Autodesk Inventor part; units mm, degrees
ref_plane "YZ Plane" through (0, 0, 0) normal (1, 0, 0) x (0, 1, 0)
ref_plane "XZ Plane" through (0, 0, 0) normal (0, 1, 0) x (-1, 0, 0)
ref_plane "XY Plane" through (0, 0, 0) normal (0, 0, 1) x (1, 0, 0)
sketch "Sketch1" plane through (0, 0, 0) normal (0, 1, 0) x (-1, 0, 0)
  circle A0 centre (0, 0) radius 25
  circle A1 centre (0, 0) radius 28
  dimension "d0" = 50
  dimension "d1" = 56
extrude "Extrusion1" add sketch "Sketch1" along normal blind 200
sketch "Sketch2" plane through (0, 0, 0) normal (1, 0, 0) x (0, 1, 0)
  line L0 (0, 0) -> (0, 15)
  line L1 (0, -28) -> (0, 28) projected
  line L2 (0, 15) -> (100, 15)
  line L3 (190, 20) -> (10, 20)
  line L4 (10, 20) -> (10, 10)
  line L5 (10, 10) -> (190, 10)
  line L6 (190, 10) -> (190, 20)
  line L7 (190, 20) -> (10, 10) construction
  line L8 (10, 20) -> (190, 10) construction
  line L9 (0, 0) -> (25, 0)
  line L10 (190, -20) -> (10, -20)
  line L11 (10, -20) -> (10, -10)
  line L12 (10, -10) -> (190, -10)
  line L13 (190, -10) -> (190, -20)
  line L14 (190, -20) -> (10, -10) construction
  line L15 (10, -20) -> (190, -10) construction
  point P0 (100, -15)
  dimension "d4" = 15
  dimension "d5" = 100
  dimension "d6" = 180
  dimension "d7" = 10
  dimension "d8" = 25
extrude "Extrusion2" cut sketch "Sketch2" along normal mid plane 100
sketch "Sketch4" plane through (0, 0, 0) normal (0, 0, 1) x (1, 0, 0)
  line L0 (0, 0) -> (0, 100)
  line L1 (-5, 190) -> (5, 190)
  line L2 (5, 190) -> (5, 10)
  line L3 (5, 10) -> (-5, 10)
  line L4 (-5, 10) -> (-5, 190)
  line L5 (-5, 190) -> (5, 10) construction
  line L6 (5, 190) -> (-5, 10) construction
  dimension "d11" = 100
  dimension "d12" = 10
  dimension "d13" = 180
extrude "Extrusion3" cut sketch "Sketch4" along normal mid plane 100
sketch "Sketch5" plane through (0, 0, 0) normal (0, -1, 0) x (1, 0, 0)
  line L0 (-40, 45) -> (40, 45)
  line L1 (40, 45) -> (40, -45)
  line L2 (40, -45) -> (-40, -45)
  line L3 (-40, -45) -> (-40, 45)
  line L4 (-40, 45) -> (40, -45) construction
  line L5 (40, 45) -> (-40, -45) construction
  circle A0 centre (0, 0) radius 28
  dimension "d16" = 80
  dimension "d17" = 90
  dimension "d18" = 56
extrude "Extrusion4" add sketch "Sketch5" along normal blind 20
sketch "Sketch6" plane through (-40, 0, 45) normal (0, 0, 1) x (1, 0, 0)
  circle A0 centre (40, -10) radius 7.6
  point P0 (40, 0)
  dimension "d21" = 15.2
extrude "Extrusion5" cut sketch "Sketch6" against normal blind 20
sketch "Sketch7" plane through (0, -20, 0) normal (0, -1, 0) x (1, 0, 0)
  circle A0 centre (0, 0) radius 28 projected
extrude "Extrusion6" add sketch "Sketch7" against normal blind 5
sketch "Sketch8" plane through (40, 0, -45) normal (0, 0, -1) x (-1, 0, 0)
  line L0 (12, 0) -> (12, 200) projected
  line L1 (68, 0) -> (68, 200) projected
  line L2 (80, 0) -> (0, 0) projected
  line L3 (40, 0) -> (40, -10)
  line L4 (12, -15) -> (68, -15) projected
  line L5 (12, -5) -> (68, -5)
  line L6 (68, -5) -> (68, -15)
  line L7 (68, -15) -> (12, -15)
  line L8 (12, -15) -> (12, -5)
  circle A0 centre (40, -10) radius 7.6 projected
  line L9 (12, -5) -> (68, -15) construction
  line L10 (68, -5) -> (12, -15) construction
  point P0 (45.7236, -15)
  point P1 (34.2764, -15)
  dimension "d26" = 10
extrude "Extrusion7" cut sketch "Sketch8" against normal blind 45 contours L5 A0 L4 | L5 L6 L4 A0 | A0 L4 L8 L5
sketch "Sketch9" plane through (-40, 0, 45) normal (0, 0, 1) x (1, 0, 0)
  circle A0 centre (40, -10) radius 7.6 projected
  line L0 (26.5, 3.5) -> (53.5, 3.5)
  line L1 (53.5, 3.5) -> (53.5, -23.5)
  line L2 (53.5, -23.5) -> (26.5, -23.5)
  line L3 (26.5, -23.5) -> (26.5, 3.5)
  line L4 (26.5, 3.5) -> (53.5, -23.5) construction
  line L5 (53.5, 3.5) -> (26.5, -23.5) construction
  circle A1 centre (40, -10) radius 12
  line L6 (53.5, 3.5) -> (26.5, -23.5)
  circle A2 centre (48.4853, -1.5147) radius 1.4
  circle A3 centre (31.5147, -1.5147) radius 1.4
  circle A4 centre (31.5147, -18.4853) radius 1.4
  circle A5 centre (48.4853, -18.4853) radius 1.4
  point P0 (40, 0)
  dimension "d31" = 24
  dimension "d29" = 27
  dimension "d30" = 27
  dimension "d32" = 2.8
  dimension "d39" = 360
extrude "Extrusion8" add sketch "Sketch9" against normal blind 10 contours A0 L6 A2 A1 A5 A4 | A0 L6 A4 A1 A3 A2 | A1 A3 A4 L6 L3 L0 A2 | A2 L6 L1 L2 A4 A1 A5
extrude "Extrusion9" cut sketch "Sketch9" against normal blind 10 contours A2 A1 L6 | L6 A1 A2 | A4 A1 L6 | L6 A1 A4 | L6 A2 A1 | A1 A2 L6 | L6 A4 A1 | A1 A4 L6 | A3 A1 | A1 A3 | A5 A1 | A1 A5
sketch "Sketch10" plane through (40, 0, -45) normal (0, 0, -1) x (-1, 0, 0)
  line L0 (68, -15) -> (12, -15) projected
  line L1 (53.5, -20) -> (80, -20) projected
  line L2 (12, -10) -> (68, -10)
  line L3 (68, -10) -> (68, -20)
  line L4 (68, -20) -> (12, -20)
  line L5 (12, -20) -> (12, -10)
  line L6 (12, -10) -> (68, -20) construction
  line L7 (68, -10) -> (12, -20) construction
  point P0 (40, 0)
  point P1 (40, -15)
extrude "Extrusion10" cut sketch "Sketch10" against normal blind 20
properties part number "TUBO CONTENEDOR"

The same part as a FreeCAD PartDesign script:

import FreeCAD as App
import Part
import Sketcher
from FreeCAD import Vector


def add_polygon(sketch, points):
    """Adds a closed chain of lines whose ends are joined by coincident constraints."""
    first, n = sketch.GeometryCount, len(points)
    for a, b in zip(points, points[1:] + points[:1]):
        sketch.addGeometry(Part.LineSegment(App.Vector(*a, 0), App.Vector(*b, 0)), False)
    for i in range(n):
        sketch.addConstraint(Sketcher.Constraint("Coincident", first + i, 2, first + (i + 1) % n, 1))

doc = App.newDocument("Part")
params = doc.addObject("Spreadsheet::Sheet", "Params")
for row, (alias, value) in enumerate([
    ("sketch1_diameter", "56 mm"),
    ("sketch1_diameter2", "50 mm"),
    ("pad1_length", "200 mm"),
    ("sketch2_width", "180 mm"),
    ("sketch2_height", "10 mm"),
    ("pocket1_length", "100 mm"),
    ("sketch3_width", "10 mm"),
    ("sketch3_height", "180 mm"),
    ("pocket2_length", "100 mm"),
    ("sketch4_diameter", "56 mm"),
    ("sketch4_width", "80 mm"),
    ("sketch4_height", "90 mm"),
    ("pad2_length", "20 mm"),
    ("sketch5_diameter", "15.2 mm"),
    ("pocket3_length", "20 mm"),
    ("sketch6_diameter", "56 mm"),
    ("pad3_length", "5 mm"),
    ("sketch7_height", "10 mm"),
    ("sketch7_width", "56 mm"),
    ("pocket4_length", "45 mm"),
    ("sketch8_diameter", "2.8 mm"),
    ("sketch8_width", "27 mm"),
    ("sketch8_diameter2", "15.2 mm"),
    ("pad4_length", "10 mm"),
    ("sketch9_diameter", "2.8 mm"),
    ("pocket5_length", "10 mm"),
    ("sketch10_width", "56 mm"),
    ("sketch10_height", "10 mm"),
    ("pocket6_length", "20 mm"),
], start=1):
    params.set(f"A{row}", alias)
    params.set(f"B{row}", "=" + value)
    params.setAlias(f"B{row}", alias)

body = doc.addObject("PartDesign::Body", "Body")
body.AllowCompound = True

sketch1 = body.newObject("Sketcher::SketchObject", "Sketch")
sketch1.AttachmentSupport = (doc.getObject("XZ_Plane"), [""])
sketch1.MapMode = "FlatFace"
sketch1.addGeometry([
    Part.Circle(Vector(0, 0, 0), Vector(0, 0, 1), 28),
    Part.Circle(Vector(0, 0, 0), Vector(0, 0, 1), 25),
], False)
sketch1.addConstraint([
    Sketcher.Constraint("Coincident", 0, 3, -1, 1),
    Sketcher.Constraint("Coincident", 1, 3, -1, 1),
    Sketcher.Constraint("Diameter", 0, 56.0),
    Sketcher.Constraint("Diameter", 1, 50.0),
])
sketch1.setExpression("Constraints[2]", "Params.sketch1_diameter")
sketch1.setExpression("Constraints[3]", "Params.sketch1_diameter2")
pad1 = body.newObject("PartDesign::Pad", "Pad")
pad1.Profile = sketch1
pad1.setExpression("Length", "Params.pad1_length")
pad1.Reversed = True

sketch2 = body.newObject("Sketcher::SketchObject", "Sketch001")
sketch2.AttachmentSupport = (doc.getObject("YZ_Plane"), [""])
sketch2.MapMode = "FlatFace"
add_polygon(sketch2, [(190, 10), (190, 20), (10, 20), (10, 10)])
add_polygon(sketch2, [(10, -20), (190, -20), (190, -10), (10, -10)])
sketch2.addConstraint([
    Sketcher.Constraint("Vertical", 0),
    Sketcher.Constraint("Horizontal", 1),
    Sketcher.Constraint("Vertical", 2),
    Sketcher.Constraint("Horizontal", 3),
    Sketcher.Constraint("Horizontal", 4),
    Sketcher.Constraint("Vertical", 5),
    Sketcher.Constraint("Horizontal", 6),
    Sketcher.Constraint("Vertical", 7),
    Sketcher.Constraint("Symmetric", 0, 2, 4, 2, -1),
    Sketcher.Constraint("Symmetric", 2, 2, 6, 2, -1),
    Sketcher.Constraint("DistanceX", 1, 2, 1, 1, 180.0),
    Sketcher.Constraint("DistanceY", 0, 1, 0, 2, 10.0),
    Sketcher.Constraint("DistanceX", -1, 1, 1, 2, 10.0),
    Sketcher.Constraint("DistanceY", -1, 1, 2, 2, 10.0),
])
sketch2.setExpression("Constraints[18]", "Params.sketch2_width")
sketch2.setExpression("Constraints[19]", "Params.sketch2_height")
pocket1 = body.newObject("PartDesign::Pocket", "Pocket")
pocket1.Profile = sketch2
pocket1.setExpression("Length", "Params.pocket1_length")
pocket1.Midplane = True

sketch3 = body.newObject("Sketcher::SketchObject", "Sketch002")
sketch3.AttachmentSupport = (doc.getObject("XY_Plane"), [""])
sketch3.MapMode = "FlatFace"
add_polygon(sketch3, [(5, 190), (-5, 190), (-5, 10), (5, 10)])
sketch3.addConstraint([
    Sketcher.Constraint("Horizontal", 0),
    Sketcher.Constraint("Vertical", 1),
    Sketcher.Constraint("Horizontal", 2),
    Sketcher.Constraint("Vertical", 3),
    Sketcher.Constraint("DistanceX", 0, 2, 0, 1, 10.0),
    Sketcher.Constraint("DistanceY", 1, 2, 1, 1, 180.0),
    Sketcher.Constraint("DistanceY", -1, 1, 1, 2, 10.0),
    Sketcher.Constraint("DistanceX", 0, 2, -1, 1, 5.0),
])
sketch3.setExpression("Constraints[8]", "Params.sketch3_width")
sketch3.setExpression("Constraints[9]", "Params.sketch3_height")
pocket2 = body.newObject("PartDesign::Pocket", "Pocket001")
pocket2.Profile = sketch3
pocket2.setExpression("Length", "Params.pocket2_length")
pocket2.Midplane = True

sketch4 = body.newObject("Sketcher::SketchObject", "Sketch003")
sketch4.AttachmentSupport = (doc.getObject("XZ_Plane"), [""])
sketch4.MapMode = "FlatFace"
add_polygon(sketch4, [(40, 45), (-40, 45), (-40, -45), (40, -45)])
sketch4.addGeometry(Part.Circle(Vector(0, 0, 0), Vector(0, 0, 1), 28), False)
sketch4.addConstraint([
    Sketcher.Constraint("Horizontal", 0),
    Sketcher.Constraint("Vertical", 1),
    Sketcher.Constraint("Horizontal", 2),
    Sketcher.Constraint("Vertical", 3),
    Sketcher.Constraint("Coincident", 4, 3, -1, 1),
    Sketcher.Constraint("Symmetric", 0, 2, 2, 2, -1, 1),
    Sketcher.Constraint("Diameter", 4, 56.0),
    Sketcher.Constraint("DistanceX", 0, 2, 0, 1, 80.0),
    Sketcher.Constraint("DistanceY", 1, 2, 1, 1, 90.0),
])
sketch4.setExpression("Constraints[10]", "Params.sketch4_diameter")
sketch4.setExpression("Constraints[11]", "Params.sketch4_width")
sketch4.setExpression("Constraints[12]", "Params.sketch4_height")
pad2 = body.newObject("PartDesign::Pad", "Pad001")
pad2.Profile = sketch4
pad2.setExpression("Length", "Params.pad2_length")

sketch5 = body.newObject("Sketcher::SketchObject", "Sketch004")
sketch5.AttachmentSupport = (doc.getObject("XY_Plane"), [""])
sketch5.MapMode = "FlatFace"
sketch5.AttachmentOffset = App.Placement(Vector(0, 0, 45), App.Rotation())
sketch5.addGeometry(Part.Circle(Vector(0, -10, 0), Vector(0, 0, 1), 8), False)
sketch5.addConstraint([
    Sketcher.Constraint("PointOnObject", 0, 3, -2),
    Sketcher.Constraint("Diameter", 0, 15.2),
    Sketcher.Constraint("DistanceY", 0, 3, -1, 1, 10.0),
])
sketch5.setExpression("Constraints[1]", "Params.sketch5_diameter")
pocket3 = body.newObject("PartDesign::Pocket", "Pocket002")
pocket3.Profile = sketch5
pocket3.setExpression("Length", "Params.pocket3_length")

sketch6 = body.newObject("Sketcher::SketchObject", "Sketch005")
sketch6.AttachmentSupport = (doc.getObject("XZ_Plane"), [""])
sketch6.MapMode = "FlatFace"
sketch6.AttachmentOffset = App.Placement(Vector(0, 0, 20), App.Rotation())
sketch6.addGeometry(Part.Circle(Vector(0, 0, 0), Vector(0, 0, 1), 28), False)
sketch6.addConstraint([
    Sketcher.Constraint("Coincident", 0, 3, -1, 1),
    Sketcher.Constraint("Diameter", 0, 56.0),
])
sketch6.setExpression("Constraints[1]", "Params.sketch6_diameter")
pad3 = body.newObject("PartDesign::Pad", "Pad002")
pad3.Profile = sketch6
pad3.setExpression("Length", "Params.pad3_length")
pad3.Reversed = True

sketch7 = body.newObject("Sketcher::SketchObject", "Sketch006")
sketch7.AttachmentSupport = (doc.getObject("XY_Plane"), [""])
sketch7.MapMode = "FlatFace"
sketch7.AttachmentOffset = App.Placement(Vector(0, 0, -45), App.Rotation())
add_polygon(sketch7, [(28, -5), (28, -15), (-28, -15), (-28, -5)])
sketch7.addConstraint([
    Sketcher.Constraint("Vertical", 0),
    Sketcher.Constraint("Horizontal", 1),
    Sketcher.Constraint("Vertical", 2),
    Sketcher.Constraint("Horizontal", 3),
    Sketcher.Constraint("DistanceY", 0, 2, 0, 1, 10.0),
    Sketcher.Constraint("DistanceX", 1, 2, 1, 1, 56.0),
    Sketcher.Constraint("DistanceX", -1, 1, 0, 2, 28.0),
    Sketcher.Constraint("DistanceY", 0, 2, -1, 1, 15.0),
])
sketch7.setExpression("Constraints[8]", "Params.sketch7_height")
sketch7.setExpression("Constraints[9]", "Params.sketch7_width")
pocket4 = body.newObject("PartDesign::Pocket", "Pocket003")
pocket4.Profile = sketch7
pocket4.setExpression("Length", "Params.pocket4_length")
pocket4.Reversed = True

sketch8 = body.newObject("Sketcher::SketchObject", "Sketch007")
sketch8.AttachmentSupport = (doc.getObject("XY_Plane"), [""])
sketch8.MapMode = "FlatFace"
sketch8.AttachmentOffset = App.Placement(Vector(0, 0, 45), App.Rotation())
add_polygon(sketch8, [(13.5, -23.5), (13.5, 3.5), (-13.5, 3.5), (-13.5, -23.5)])
sketch8.addGeometry(Part.Circle(Vector(0, -10, 0), Vector(0, 0, 1), 7.6), False)
sketch8.addGeometry(Part.Circle(Vector(8.5, -1.5, 0), Vector(0, 0, 1), 1.4), False)
sketch8.addGeometry(Part.Circle(Vector(8.5, -18.5, 0), Vector(0, 0, 1), 1.4), False)
sketch8.addGeometry(Part.Circle(Vector(-8.5, -18.5, 0), Vector(0, 0, 1), 1.4), False)
sketch8.addGeometry(Part.Circle(Vector(-8.5, -1.5, 0), Vector(0, 0, 1), 1.4), False)
sketch8.addConstraint([
    Sketcher.Constraint("Vertical", 0),
    Sketcher.Constraint("Horizontal", 1),
    Sketcher.Constraint("Vertical", 2),
    Sketcher.Constraint("Horizontal", 3),
    Sketcher.Constraint("Equal", 5, 6),
    Sketcher.Constraint("Equal", 6, 7),
    Sketcher.Constraint("Equal", 7, 8),
    Sketcher.Constraint("Symmetric", 6, 3, 7, 3, -2),
    Sketcher.Constraint("Symmetric", 5, 3, 8, 3, -2),
    Sketcher.Constraint("PointOnObject", 4, 3, -2),
    Sketcher.Constraint("Vertical", 5, 3, 6, 3),
    Sketcher.Constraint("Equal", 3, 0),
    Sketcher.Constraint("Diameter", 5, 2.8),
    Sketcher.Constraint("DistanceX", 1, 2, 1, 1, 27.0),
    Sketcher.Constraint("Diameter", 4, 15.2),
    Sketcher.Constraint("DistanceY", 4, 3, -1, 1, 10.0),
    Sketcher.Constraint("DistanceX", -1, 1, 0, 2, 13.5),
    Sketcher.Constraint("DistanceY", -1, 1, 0, 2, 3.5),
    Sketcher.Constraint("DistanceX", -1, 1, 5, 3, 8.4853),
    Sketcher.Constraint("DistanceY", 5, 3, -1, 1, 1.5147),
    Sketcher.Constraint("DistanceY", 6, 3, -1, 1, 18.4853),
])
sketch8.setExpression("Constraints[16]", "Params.sketch8_diameter")
sketch8.setExpression("Constraints[17]", "Params.sketch8_width")
sketch8.setExpression("Constraints[18]", "Params.sketch8_diameter2")
pad4 = body.newObject("PartDesign::Pad", "Pad003")
pad4.Profile = sketch8
pad4.setExpression("Length", "Params.pad4_length")
pad4.Reversed = True

sketch9 = body.newObject("Sketcher::SketchObject", "Sketch008")
sketch9.AttachmentSupport = (doc.getObject("XY_Plane"), [""])
sketch9.MapMode = "FlatFace"
sketch9.AttachmentOffset = App.Placement(Vector(0, 0, 45), App.Rotation())
sketch9.addGeometry([
    Part.Circle(Vector(8.5, -1.5, 0), Vector(0, 0, 1), 1.4),
    Part.Circle(Vector(-8.5, -18.5, 0), Vector(0, 0, 1), 1.4),
    Part.Circle(Vector(-8.5, -1.5, 0), Vector(0, 0, 1), 1.4),
    Part.Circle(Vector(8.5, -18.5, 0), Vector(0, 0, 1), 1.4),
], False)
sketch9.addConstraint([
    Sketcher.Constraint("Equal", 0, 1),
    Sketcher.Constraint("Equal", 1, 2),
    Sketcher.Constraint("Equal", 2, 3),
    Sketcher.Constraint("Symmetric", 0, 3, 2, 3, -2),
    Sketcher.Constraint("Symmetric", 1, 3, 3, 3, -2),
    Sketcher.Constraint("Vertical", 1, 3, 2, 3),
    Sketcher.Constraint("Diameter", 0, 2.8),
    Sketcher.Constraint("DistanceX", -1, 1, 0, 3, 8.4853),
    Sketcher.Constraint("DistanceY", 0, 3, -1, 1, 1.5147),
    Sketcher.Constraint("DistanceY", 1, 3, -1, 1, 18.4853),
])
sketch9.setExpression("Constraints[6]", "Params.sketch9_diameter")
pocket5 = body.newObject("PartDesign::Pocket", "Pocket004")
pocket5.Profile = sketch9
pocket5.setExpression("Length", "Params.pocket5_length")

sketch10 = body.newObject("Sketcher::SketchObject", "Sketch009")
sketch10.AttachmentSupport = (doc.getObject("XY_Plane"), [""])
sketch10.MapMode = "FlatFace"
sketch10.AttachmentOffset = App.Placement(Vector(0, 0, -45), App.Rotation())
add_polygon(sketch10, [(-28, -20), (-28, -10), (28, -10), (28, -20)])
sketch10.addConstraint([
    Sketcher.Constraint("Vertical", 0),
    Sketcher.Constraint("Horizontal", 1),
    Sketcher.Constraint("Vertical", 2),
    Sketcher.Constraint("Horizontal", 3),
    Sketcher.Constraint("DistanceX", 1, 1, 1, 2, 56.0),
    Sketcher.Constraint("DistanceY", 0, 1, 0, 2, 10.0),
    Sketcher.Constraint("DistanceX", 0, 2, -1, 1, 28.0),
    Sketcher.Constraint("DistanceY", 0, 2, -1, 1, 10.0),
])
sketch10.setExpression("Constraints[8]", "Params.sketch10_width")
sketch10.setExpression("Constraints[9]", "Params.sketch10_height")
pocket6 = body.newObject("PartDesign::Pocket", "Pocket005")
pocket6.Profile = sketch10
pocket6.setExpression("Length", "Params.pocket6_length")
pocket6.Reversed = True

doc.recompute()
